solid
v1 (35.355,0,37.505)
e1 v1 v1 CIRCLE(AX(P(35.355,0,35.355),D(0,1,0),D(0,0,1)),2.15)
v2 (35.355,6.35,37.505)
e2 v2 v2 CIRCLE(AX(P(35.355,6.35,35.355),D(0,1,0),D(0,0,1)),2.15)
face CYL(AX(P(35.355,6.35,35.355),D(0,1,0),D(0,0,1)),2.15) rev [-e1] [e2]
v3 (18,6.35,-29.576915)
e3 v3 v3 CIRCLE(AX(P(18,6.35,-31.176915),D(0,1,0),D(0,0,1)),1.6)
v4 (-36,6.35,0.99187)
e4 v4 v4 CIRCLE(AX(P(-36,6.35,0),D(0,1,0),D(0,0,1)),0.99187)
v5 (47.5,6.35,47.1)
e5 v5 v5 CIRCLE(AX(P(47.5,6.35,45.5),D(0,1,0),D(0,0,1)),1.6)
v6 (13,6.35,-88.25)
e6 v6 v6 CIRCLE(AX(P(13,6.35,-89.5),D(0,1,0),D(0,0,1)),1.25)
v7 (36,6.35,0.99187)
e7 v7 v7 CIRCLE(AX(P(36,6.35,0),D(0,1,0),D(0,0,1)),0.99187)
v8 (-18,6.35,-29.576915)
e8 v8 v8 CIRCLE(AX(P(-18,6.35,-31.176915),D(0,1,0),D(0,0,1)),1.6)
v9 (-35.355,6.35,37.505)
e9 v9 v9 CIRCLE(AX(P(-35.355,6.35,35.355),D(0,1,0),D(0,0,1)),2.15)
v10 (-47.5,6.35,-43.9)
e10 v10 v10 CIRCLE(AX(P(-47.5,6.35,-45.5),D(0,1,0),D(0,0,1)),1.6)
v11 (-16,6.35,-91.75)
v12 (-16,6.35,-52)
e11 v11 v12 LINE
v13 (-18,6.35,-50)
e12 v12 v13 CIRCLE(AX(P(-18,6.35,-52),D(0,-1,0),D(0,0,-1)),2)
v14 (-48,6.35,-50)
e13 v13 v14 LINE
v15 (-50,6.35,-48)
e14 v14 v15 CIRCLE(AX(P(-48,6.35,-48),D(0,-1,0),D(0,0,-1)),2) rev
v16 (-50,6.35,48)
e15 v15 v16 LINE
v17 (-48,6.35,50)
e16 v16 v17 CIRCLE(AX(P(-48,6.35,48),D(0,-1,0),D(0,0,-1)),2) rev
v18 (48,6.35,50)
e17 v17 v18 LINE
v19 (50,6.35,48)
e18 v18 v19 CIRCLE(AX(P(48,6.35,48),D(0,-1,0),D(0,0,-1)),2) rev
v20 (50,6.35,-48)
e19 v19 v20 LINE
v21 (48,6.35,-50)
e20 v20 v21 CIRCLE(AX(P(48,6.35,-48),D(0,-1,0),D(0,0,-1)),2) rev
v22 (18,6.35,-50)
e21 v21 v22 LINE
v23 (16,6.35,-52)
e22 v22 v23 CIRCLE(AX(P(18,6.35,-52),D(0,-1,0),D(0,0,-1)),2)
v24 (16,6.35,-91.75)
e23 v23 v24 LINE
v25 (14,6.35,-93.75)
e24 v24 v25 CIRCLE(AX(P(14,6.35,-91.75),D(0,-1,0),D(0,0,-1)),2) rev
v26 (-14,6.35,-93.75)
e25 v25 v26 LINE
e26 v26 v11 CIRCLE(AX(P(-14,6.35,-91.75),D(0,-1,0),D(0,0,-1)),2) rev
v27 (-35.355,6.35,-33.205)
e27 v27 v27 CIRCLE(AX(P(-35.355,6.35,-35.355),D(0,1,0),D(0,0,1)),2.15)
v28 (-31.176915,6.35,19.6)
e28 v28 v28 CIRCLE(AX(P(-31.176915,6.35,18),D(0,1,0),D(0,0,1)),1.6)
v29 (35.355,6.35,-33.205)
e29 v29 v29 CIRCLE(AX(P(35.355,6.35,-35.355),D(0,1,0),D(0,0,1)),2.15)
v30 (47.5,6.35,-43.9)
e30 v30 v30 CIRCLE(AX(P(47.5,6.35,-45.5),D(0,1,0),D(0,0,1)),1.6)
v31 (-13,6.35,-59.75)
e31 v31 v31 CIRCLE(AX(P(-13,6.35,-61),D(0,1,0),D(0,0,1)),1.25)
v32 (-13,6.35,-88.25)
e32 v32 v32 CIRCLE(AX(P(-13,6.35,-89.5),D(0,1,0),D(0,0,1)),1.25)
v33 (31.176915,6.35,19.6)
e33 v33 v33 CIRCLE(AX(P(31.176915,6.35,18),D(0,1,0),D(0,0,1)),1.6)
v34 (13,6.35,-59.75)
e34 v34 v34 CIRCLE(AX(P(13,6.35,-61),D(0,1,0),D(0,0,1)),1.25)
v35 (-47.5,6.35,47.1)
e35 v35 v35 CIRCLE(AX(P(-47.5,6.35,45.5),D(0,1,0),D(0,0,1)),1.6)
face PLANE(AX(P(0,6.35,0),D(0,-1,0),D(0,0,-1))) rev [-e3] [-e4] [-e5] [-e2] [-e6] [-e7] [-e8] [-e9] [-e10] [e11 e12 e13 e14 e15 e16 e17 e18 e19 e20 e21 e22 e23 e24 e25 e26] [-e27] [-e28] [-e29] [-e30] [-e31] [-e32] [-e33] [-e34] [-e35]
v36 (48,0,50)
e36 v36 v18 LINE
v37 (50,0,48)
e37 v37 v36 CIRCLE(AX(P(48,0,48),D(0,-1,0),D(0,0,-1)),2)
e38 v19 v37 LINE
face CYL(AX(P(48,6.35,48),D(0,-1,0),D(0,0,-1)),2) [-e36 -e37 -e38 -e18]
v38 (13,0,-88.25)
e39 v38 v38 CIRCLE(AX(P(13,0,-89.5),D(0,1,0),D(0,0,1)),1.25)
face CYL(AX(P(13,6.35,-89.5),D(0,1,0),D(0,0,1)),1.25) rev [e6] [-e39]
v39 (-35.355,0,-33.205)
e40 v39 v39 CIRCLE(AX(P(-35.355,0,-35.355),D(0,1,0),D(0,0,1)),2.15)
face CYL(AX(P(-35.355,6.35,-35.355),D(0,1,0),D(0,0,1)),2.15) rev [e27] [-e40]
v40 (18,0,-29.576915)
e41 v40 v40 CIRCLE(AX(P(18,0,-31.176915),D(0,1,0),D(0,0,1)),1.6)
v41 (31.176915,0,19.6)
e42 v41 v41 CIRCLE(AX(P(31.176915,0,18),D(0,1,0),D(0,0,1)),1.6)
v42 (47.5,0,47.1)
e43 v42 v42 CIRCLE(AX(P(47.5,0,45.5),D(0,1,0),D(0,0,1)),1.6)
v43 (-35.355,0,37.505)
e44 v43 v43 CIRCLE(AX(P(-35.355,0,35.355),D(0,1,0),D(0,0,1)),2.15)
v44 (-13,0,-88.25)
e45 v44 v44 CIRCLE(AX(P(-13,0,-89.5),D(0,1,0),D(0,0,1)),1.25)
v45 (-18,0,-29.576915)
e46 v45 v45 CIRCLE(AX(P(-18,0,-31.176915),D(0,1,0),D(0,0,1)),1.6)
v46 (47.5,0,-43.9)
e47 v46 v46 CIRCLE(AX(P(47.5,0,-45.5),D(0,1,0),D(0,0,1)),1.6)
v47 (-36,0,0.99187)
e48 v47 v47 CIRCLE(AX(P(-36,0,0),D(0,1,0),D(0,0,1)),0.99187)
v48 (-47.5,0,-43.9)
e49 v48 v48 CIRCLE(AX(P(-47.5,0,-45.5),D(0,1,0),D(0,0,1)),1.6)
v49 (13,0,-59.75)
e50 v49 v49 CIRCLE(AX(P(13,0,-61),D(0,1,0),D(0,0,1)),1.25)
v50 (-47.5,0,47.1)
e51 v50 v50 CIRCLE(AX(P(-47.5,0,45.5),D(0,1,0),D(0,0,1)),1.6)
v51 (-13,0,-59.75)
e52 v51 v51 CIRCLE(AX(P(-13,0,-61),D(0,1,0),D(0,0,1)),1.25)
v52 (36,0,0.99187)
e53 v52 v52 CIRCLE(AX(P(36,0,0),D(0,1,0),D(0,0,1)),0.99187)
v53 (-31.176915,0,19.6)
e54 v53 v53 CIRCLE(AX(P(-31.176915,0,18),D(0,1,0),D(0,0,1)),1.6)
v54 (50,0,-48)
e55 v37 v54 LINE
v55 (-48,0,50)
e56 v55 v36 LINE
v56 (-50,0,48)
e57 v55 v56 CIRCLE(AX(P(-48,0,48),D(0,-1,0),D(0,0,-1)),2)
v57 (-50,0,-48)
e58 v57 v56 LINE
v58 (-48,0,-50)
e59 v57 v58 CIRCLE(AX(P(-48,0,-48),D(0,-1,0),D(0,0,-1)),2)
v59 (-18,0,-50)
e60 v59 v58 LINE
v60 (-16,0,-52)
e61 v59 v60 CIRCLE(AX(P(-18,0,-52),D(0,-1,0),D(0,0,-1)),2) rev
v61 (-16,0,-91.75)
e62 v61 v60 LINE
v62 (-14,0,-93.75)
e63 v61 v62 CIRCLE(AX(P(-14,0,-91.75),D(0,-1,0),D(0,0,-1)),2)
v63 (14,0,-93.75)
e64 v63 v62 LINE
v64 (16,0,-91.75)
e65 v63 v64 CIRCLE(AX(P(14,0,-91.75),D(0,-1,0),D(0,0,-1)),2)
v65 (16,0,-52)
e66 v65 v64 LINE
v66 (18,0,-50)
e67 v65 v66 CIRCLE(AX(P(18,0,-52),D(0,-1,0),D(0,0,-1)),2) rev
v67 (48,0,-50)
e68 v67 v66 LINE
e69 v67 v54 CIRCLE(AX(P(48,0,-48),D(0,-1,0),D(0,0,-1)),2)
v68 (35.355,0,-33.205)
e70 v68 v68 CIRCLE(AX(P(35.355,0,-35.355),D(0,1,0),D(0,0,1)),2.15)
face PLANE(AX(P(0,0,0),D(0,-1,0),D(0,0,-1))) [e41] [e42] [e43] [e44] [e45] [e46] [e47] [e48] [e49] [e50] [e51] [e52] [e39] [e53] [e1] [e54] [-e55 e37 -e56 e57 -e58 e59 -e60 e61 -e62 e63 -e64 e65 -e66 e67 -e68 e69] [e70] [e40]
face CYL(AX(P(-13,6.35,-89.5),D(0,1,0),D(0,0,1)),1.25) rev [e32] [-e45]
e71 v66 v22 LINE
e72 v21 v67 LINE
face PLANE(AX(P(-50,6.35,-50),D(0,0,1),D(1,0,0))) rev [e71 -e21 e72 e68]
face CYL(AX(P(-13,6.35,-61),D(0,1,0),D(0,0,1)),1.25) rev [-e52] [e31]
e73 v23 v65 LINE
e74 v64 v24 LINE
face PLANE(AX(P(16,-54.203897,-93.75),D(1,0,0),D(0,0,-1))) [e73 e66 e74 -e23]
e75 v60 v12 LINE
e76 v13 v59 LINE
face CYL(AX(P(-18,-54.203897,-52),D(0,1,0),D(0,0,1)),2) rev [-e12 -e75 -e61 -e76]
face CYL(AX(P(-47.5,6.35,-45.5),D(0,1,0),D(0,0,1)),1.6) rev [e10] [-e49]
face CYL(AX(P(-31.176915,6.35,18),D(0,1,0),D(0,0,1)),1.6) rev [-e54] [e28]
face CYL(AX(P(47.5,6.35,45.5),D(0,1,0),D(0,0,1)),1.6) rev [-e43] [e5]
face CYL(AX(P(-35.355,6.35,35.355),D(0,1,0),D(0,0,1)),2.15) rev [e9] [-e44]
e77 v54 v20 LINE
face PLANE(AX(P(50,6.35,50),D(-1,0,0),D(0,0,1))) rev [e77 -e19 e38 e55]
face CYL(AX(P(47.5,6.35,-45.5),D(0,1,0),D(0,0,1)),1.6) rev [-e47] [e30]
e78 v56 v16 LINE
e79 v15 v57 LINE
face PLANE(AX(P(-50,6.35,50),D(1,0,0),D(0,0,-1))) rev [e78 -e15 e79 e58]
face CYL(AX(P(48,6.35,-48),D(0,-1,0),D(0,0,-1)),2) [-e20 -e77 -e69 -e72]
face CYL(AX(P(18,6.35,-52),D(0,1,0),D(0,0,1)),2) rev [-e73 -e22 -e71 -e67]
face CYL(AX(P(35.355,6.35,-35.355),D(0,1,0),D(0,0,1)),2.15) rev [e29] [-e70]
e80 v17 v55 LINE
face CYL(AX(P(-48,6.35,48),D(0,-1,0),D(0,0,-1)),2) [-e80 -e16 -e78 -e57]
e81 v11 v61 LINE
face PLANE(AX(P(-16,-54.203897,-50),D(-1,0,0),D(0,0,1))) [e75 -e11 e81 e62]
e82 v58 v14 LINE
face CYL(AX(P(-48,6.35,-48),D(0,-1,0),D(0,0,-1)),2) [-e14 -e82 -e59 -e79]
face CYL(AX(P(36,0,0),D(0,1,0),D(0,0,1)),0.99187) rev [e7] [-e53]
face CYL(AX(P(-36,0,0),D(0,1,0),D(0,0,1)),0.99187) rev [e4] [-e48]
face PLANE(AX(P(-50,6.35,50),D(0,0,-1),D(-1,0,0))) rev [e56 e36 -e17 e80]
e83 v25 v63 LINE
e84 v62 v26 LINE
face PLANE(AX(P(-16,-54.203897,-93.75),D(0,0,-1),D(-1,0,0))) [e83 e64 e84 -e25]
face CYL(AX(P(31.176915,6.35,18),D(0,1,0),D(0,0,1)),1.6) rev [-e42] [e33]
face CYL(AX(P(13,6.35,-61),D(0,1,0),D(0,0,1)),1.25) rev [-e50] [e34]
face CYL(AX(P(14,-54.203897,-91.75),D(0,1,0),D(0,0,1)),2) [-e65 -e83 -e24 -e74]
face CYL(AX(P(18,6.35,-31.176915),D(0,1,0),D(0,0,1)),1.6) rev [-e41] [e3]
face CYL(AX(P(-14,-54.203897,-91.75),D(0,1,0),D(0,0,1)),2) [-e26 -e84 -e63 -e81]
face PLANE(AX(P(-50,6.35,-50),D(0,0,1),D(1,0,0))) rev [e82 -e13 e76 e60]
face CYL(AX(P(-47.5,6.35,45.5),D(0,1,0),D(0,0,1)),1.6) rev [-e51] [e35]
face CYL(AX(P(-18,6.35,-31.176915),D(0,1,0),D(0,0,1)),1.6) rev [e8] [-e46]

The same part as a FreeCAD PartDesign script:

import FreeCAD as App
import Part
import Sketcher

V = App.Vector
Q = App.Units.Quantity


def edges_at(feature, points):
    """Names of the edges that pass closest to the given points."""
    edges = feature.Shape.Edges
    near = lambda p: min(range(len(edges)), key=lambda i: edges[i].distToShape(Part.Vertex(*p))[0])
    return sorted({f"Edge{near(p) + 1}" for p in points})

doc = App.newDocument("Part")
body = doc.addObject("PartDesign::Body", "Body")

sketch1 = body.newObject("Sketcher::SketchObject", "Sketch")
sketch1.AttachmentSupport = (doc.getObject("XZ_Plane"), [""])
sketch1.MapMode = "FlatFace"
sketch1.addGeometry([
    Part.LineSegment(V(-50, -50, 0), V(-50, 50, 0)),
    Part.LineSegment(V(-50, 50, 0), V(50, 50, 0)),
    Part.LineSegment(V(50, 50, 0), V(50, -50, 0)),
    Part.LineSegment(V(50, -50, 0), V(-50, -50, 0)),
], False)
sketch1.addConstraint([
    Sketcher.Constraint("Coincident", 0, 2, 1, 1),
    Sketcher.Constraint("Coincident", 1, 2, 2, 1),
    Sketcher.Constraint("Coincident", 2, 2, 3, 1),
    Sketcher.Constraint("Coincident", 3, 2, 0, 1),
    Sketcher.Constraint("Vertical", 0),
    Sketcher.Constraint("Horizontal", 1),
    Sketcher.Constraint("Vertical", 2),
    Sketcher.Constraint("Horizontal", 3),
    Sketcher.Constraint("Symmetric", 0, 2, 2, 2, -1, 1),
    Sketcher.Constraint("Equal", 3, 0),
    Sketcher.Constraint("DistanceX", 1, 1, 1, 2, Q("100 mm")),
])
pad1 = body.newObject("PartDesign::Pad", "Pad")
pad1.Profile = sketch1
pad1.Length = 6.35
pad1.Reversed = True

sketch2 = body.newObject("Sketcher::SketchObject", "Sketch001")
sketch2.AttachmentSupport = (doc.getObject("XZ_Plane"), [""])
sketch2.MapMode = "FlatFace"
sketch2.AttachmentOffset = App.Placement(V(0, 0, -6.35), App.Rotation())
sketch2.addGeometry([
    Part.LineSegment(V(-16, -94, 0), V(-16, -50, 0)),
    Part.LineSegment(V(-16, -50, 0), V(16, -50, 0)),
    Part.LineSegment(V(16, -50, 0), V(16, -94, 0)),
    Part.LineSegment(V(16, -94, 0), V(-16, -94, 0)),
], False)
sketch2.addConstraint([
    Sketcher.Constraint("Coincident", 0, 2, 1, 1),
    Sketcher.Constraint("Coincident", 1, 2, 2, 1),
    Sketcher.Constraint("Coincident", 2, 2, 3, 1),
    Sketcher.Constraint("Coincident", 3, 2, 0, 1),
    Sketcher.Constraint("Vertical", 0),
    Sketcher.Constraint("Horizontal", 1),
    Sketcher.Constraint("Vertical", 2),
    Sketcher.Constraint("Horizontal", 3),
    Sketcher.Constraint("DistanceX", 1, 1, 1, 2, Q("32 mm")),
    Sketcher.Constraint("DistanceX", 0, 2, -1, 1, Q("16 mm")),
    Sketcher.Constraint("DistanceY", 0, 2, -1, 1, Q("50 mm")),
    Sketcher.Constraint("DistanceY", 0, 1, 0, 2, Q("43.75 mm")),
])
pad2 = body.newObject("PartDesign::Pad", "Pad001")
pad2.Profile = sketch2
pad2.Length = 6.35

sketch3 = body.newObject("Sketcher::SketchObject", "Sketch002")
sketch3.AttachmentSupport = (doc.getObject("XZ_Plane"), [""])
sketch3.MapMode = "FlatFace"
sketch3.AttachmentOffset = App.Placement(V(0, 0, -6.35), App.Rotation())
sketch3.addGeometry([
    Part.Circle(V(-36, 0, 0), V(0, 0, 1), 1),
    Part.Circle(V(36, 0, 0), V(0, 0, 1), 1),
], False)
sketch3.addConstraint([
    Sketcher.Constraint("Equal", 0, 1),
    Sketcher.Constraint("Symmetric", 0, 3, 1, 3, -1, 1),
    Sketcher.Constraint("PointOnObject", 0, 3, -1),
    Sketcher.Constraint("DistanceX", 0, 3, -1, 1, Q("36 mm")),
    Sketcher.Constraint("Diameter", 0, Q("1.98374 mm")),
])
pocket1 = body.newObject("PartDesign::Pocket", "Pocket")
pocket1.Profile = sketch3
pocket1.Type = "ThroughAll"
pocket1.Reversed = True

sketch4 = body.newObject("Sketcher::SketchObject", "Sketch003")
sketch4.AttachmentSupport = (doc.getObject("XZ_Plane"), [""])
sketch4.MapMode = "FlatFace"
sketch4.AttachmentOffset = App.Placement(V(0, 0, -6.35), App.Rotation())
sketch4.addGeometry([
    Part.Circle(V(-47.5, -45.5, 0), V(0, 0, 1), 1.6),
    Part.Circle(V(47.5, -45.5, 0), V(0, 0, 1), 1.6),
    Part.Circle(V(47.5, 45.5, 0), V(0, 0, 1), 1.6),
    Part.Circle(V(-47.5, 45.5, 0), V(0, 0, 1), 1.6),
    Part.Circle(V(-31.2, 18, 0), V(0, 0, 1), 1.6),
    Part.Circle(V(31.2, 18, 0), V(0, 0, 1), 1.6),
    Part.Circle(V(18, -31.2, 0), V(0, 0, 1), 1.6),
    Part.Circle(V(-18, -31.2, 0), V(0, 0, 1), 1.6),
], False)
sketch4.addConstraint([
    Sketcher.Constraint("Equal", 0, 1),
    Sketcher.Constraint("Equal", 1, 2),
    Sketcher.Constraint("Equal", 2, 3),
    Sketcher.Constraint("Equal", 3, 4),
    Sketcher.Constraint("Equal", 4, 5),
    Sketcher.Constraint("Equal", 5, 6),
    Sketcher.Constraint("Equal", 6, 7),
    Sketcher.Constraint("Symmetric", 0, 3, 2, 3, -1, 1),
    Sketcher.Constraint("Symmetric", 1, 3, 3, 3, -1, 1),
    Sketcher.Constraint("Symmetric", 0, 3, 1, 3, -2),
    Sketcher.Constraint("Symmetric", 4, 3, 5, 3, -2),
    Sketcher.Constraint("Symmetric", 6, 3, 7, 3, -2),
    Sketcher.Constraint("Diameter", 0, Q("3.2 mm")),
    Sketcher.Constraint("DistanceY", -1, 1, 4, 3, Q("18 mm")),
    Sketcher.Constraint("DistanceX", -1, 1, 6, 3, Q("18 mm")),
    Sketcher.Constraint("DistanceX", 0, 3, 1, 3, Q("95 mm")),
    Sketcher.Constraint("DistanceY", 1, 3, 2, 3, Q("91 mm")),
    Sketcher.Constraint("DistanceX", 4, 3, 5, 3, Q("62.353829 mm")),
    Sketcher.Constraint("DistanceY", 6, 3, -1, 1, Q("31.176915 mm")),
])
doc.recompute()
hole = body.newObject("PartDesign::Hole", "Hole")
hole.Profile = sketch4
hole.ThreadType = "None"
hole.Diameter = 3.2
hole.DepthType = "ThroughAll"
hole.Reversed = True

sketch5 = body.newObject("Sketcher::SketchObject", "Sketch004")
sketch5.AttachmentSupport = (doc.getObject("XZ_Plane"), [""])
sketch5.MapMode = "FlatFace"
sketch5.AttachmentOffset = App.Placement(V(0, 0, -6.35), App.Rotation())
sketch5.addGeometry([
    Part.Circle(V(-35.4, 35.4, 0), V(0, 0, 1), 2.1),
    Part.Circle(V(-35.4, -35.4, 0), V(0, 0, 1), 2.1),
    Part.Circle(V(35.4, -35.4, 0), V(0, 0, 1), 2.1),
    Part.Circle(V(35.4, 35.4, 0), V(0, 0, 1), 2.1),
], False)
sketch5.addConstraint([
    Sketcher.Constraint("Equal", 0, 1),
    Sketcher.Constraint("Equal", 1, 2),
    Sketcher.Constraint("Equal", 2, 3),
    Sketcher.Constraint("Symmetric", 0, 3, 2, 3, -1, 1),
    Sketcher.Constraint("Symmetric", 1, 3, 3, 3, -1, 1),
    Sketcher.Constraint("Symmetric", 1, 3, 2, 3, -2),
    Sketcher.Constraint("Diameter", 0, Q("4.3 mm")),
    Sketcher.Constraint("DistanceY", 1, 3, 0, 3, Q("70.71 mm")),
    Sketcher.Constraint("DistanceX", 1, 3, 2, 3, Q("70.71 mm")),
])
doc.recompute()
hole2 = body.newObject("PartDesign::Hole", "Hole001")
hole2.Profile = sketch5
hole2.ThreadType = "None"
hole2.Diameter = 4.3
hole2.DepthType = "ThroughAll"
hole2.Reversed = True

sketch6 = body.newObject("Sketcher::SketchObject", "Sketch005")
sketch6.AttachmentSupport = (doc.getObject("XZ_Plane"), [""])
sketch6.MapMode = "FlatFace"
sketch6.AttachmentOffset = App.Placement(V(0, 0, -6.35), App.Rotation())
sketch6.addGeometry([
    Part.Circle(V(-13, -89.5, 0), V(0, 0, 1), 1.2),
    Part.Circle(V(13, -89.5, 0), V(0, 0, 1), 1.2),
    Part.Circle(V(13, -61, 0), V(0, 0, 1), 1.2),
    Part.Circle(V(-13, -61, 0), V(0, 0, 1), 1.2),
], False)
sketch6.addConstraint([
    Sketcher.Constraint("Equal", 0, 1),
    Sketcher.Constraint("Equal", 1, 2),
    Sketcher.Constraint("Equal", 2, 3),
    Sketcher.Constraint("Symmetric", 0, 3, 1, 3, -2),
    Sketcher.Constraint("Symmetric", 2, 3, 3, 3, -2),
    Sketcher.Constraint("Vertical", 1, 3, 2, 3),
    Sketcher.Constraint("Diameter", 0, Q("2.5 mm")),
    Sketcher.Constraint("DistanceX", 0, 3, -1, 1, Q("13 mm")),
    Sketcher.Constraint("DistanceY", 2, 3, -1, 1, Q("61 mm")),
    Sketcher.Constraint("DistanceY", 0, 3, -1, 1, Q("89.5 mm")),
])
doc.recompute()
hole3 = body.newObject("PartDesign::Hole", "Hole002")
hole3.Profile = sketch6
hole3.ThreadType = "None"
hole3.Diameter = 2.5
hole3.DepthType = "ThroughAll"
hole3.Reversed = True
doc.recompute()

fillet = body.newObject("PartDesign::Fillet", "Fillet")
fillet.Base = (hole3, edges_at(hole3, [
    (16, 3.175, -93.75),
    (-16, 3.175, -93.75),
    (-16, 3.175, -50),
    (16, 3.175, -50),
    (50, 3.175, 50),
    (-50, 3.175, 50),
    (-50, 3.175, -50),
    (50, 3.175, -50),
]))
fillet.Radius = 2

doc.recompute()
